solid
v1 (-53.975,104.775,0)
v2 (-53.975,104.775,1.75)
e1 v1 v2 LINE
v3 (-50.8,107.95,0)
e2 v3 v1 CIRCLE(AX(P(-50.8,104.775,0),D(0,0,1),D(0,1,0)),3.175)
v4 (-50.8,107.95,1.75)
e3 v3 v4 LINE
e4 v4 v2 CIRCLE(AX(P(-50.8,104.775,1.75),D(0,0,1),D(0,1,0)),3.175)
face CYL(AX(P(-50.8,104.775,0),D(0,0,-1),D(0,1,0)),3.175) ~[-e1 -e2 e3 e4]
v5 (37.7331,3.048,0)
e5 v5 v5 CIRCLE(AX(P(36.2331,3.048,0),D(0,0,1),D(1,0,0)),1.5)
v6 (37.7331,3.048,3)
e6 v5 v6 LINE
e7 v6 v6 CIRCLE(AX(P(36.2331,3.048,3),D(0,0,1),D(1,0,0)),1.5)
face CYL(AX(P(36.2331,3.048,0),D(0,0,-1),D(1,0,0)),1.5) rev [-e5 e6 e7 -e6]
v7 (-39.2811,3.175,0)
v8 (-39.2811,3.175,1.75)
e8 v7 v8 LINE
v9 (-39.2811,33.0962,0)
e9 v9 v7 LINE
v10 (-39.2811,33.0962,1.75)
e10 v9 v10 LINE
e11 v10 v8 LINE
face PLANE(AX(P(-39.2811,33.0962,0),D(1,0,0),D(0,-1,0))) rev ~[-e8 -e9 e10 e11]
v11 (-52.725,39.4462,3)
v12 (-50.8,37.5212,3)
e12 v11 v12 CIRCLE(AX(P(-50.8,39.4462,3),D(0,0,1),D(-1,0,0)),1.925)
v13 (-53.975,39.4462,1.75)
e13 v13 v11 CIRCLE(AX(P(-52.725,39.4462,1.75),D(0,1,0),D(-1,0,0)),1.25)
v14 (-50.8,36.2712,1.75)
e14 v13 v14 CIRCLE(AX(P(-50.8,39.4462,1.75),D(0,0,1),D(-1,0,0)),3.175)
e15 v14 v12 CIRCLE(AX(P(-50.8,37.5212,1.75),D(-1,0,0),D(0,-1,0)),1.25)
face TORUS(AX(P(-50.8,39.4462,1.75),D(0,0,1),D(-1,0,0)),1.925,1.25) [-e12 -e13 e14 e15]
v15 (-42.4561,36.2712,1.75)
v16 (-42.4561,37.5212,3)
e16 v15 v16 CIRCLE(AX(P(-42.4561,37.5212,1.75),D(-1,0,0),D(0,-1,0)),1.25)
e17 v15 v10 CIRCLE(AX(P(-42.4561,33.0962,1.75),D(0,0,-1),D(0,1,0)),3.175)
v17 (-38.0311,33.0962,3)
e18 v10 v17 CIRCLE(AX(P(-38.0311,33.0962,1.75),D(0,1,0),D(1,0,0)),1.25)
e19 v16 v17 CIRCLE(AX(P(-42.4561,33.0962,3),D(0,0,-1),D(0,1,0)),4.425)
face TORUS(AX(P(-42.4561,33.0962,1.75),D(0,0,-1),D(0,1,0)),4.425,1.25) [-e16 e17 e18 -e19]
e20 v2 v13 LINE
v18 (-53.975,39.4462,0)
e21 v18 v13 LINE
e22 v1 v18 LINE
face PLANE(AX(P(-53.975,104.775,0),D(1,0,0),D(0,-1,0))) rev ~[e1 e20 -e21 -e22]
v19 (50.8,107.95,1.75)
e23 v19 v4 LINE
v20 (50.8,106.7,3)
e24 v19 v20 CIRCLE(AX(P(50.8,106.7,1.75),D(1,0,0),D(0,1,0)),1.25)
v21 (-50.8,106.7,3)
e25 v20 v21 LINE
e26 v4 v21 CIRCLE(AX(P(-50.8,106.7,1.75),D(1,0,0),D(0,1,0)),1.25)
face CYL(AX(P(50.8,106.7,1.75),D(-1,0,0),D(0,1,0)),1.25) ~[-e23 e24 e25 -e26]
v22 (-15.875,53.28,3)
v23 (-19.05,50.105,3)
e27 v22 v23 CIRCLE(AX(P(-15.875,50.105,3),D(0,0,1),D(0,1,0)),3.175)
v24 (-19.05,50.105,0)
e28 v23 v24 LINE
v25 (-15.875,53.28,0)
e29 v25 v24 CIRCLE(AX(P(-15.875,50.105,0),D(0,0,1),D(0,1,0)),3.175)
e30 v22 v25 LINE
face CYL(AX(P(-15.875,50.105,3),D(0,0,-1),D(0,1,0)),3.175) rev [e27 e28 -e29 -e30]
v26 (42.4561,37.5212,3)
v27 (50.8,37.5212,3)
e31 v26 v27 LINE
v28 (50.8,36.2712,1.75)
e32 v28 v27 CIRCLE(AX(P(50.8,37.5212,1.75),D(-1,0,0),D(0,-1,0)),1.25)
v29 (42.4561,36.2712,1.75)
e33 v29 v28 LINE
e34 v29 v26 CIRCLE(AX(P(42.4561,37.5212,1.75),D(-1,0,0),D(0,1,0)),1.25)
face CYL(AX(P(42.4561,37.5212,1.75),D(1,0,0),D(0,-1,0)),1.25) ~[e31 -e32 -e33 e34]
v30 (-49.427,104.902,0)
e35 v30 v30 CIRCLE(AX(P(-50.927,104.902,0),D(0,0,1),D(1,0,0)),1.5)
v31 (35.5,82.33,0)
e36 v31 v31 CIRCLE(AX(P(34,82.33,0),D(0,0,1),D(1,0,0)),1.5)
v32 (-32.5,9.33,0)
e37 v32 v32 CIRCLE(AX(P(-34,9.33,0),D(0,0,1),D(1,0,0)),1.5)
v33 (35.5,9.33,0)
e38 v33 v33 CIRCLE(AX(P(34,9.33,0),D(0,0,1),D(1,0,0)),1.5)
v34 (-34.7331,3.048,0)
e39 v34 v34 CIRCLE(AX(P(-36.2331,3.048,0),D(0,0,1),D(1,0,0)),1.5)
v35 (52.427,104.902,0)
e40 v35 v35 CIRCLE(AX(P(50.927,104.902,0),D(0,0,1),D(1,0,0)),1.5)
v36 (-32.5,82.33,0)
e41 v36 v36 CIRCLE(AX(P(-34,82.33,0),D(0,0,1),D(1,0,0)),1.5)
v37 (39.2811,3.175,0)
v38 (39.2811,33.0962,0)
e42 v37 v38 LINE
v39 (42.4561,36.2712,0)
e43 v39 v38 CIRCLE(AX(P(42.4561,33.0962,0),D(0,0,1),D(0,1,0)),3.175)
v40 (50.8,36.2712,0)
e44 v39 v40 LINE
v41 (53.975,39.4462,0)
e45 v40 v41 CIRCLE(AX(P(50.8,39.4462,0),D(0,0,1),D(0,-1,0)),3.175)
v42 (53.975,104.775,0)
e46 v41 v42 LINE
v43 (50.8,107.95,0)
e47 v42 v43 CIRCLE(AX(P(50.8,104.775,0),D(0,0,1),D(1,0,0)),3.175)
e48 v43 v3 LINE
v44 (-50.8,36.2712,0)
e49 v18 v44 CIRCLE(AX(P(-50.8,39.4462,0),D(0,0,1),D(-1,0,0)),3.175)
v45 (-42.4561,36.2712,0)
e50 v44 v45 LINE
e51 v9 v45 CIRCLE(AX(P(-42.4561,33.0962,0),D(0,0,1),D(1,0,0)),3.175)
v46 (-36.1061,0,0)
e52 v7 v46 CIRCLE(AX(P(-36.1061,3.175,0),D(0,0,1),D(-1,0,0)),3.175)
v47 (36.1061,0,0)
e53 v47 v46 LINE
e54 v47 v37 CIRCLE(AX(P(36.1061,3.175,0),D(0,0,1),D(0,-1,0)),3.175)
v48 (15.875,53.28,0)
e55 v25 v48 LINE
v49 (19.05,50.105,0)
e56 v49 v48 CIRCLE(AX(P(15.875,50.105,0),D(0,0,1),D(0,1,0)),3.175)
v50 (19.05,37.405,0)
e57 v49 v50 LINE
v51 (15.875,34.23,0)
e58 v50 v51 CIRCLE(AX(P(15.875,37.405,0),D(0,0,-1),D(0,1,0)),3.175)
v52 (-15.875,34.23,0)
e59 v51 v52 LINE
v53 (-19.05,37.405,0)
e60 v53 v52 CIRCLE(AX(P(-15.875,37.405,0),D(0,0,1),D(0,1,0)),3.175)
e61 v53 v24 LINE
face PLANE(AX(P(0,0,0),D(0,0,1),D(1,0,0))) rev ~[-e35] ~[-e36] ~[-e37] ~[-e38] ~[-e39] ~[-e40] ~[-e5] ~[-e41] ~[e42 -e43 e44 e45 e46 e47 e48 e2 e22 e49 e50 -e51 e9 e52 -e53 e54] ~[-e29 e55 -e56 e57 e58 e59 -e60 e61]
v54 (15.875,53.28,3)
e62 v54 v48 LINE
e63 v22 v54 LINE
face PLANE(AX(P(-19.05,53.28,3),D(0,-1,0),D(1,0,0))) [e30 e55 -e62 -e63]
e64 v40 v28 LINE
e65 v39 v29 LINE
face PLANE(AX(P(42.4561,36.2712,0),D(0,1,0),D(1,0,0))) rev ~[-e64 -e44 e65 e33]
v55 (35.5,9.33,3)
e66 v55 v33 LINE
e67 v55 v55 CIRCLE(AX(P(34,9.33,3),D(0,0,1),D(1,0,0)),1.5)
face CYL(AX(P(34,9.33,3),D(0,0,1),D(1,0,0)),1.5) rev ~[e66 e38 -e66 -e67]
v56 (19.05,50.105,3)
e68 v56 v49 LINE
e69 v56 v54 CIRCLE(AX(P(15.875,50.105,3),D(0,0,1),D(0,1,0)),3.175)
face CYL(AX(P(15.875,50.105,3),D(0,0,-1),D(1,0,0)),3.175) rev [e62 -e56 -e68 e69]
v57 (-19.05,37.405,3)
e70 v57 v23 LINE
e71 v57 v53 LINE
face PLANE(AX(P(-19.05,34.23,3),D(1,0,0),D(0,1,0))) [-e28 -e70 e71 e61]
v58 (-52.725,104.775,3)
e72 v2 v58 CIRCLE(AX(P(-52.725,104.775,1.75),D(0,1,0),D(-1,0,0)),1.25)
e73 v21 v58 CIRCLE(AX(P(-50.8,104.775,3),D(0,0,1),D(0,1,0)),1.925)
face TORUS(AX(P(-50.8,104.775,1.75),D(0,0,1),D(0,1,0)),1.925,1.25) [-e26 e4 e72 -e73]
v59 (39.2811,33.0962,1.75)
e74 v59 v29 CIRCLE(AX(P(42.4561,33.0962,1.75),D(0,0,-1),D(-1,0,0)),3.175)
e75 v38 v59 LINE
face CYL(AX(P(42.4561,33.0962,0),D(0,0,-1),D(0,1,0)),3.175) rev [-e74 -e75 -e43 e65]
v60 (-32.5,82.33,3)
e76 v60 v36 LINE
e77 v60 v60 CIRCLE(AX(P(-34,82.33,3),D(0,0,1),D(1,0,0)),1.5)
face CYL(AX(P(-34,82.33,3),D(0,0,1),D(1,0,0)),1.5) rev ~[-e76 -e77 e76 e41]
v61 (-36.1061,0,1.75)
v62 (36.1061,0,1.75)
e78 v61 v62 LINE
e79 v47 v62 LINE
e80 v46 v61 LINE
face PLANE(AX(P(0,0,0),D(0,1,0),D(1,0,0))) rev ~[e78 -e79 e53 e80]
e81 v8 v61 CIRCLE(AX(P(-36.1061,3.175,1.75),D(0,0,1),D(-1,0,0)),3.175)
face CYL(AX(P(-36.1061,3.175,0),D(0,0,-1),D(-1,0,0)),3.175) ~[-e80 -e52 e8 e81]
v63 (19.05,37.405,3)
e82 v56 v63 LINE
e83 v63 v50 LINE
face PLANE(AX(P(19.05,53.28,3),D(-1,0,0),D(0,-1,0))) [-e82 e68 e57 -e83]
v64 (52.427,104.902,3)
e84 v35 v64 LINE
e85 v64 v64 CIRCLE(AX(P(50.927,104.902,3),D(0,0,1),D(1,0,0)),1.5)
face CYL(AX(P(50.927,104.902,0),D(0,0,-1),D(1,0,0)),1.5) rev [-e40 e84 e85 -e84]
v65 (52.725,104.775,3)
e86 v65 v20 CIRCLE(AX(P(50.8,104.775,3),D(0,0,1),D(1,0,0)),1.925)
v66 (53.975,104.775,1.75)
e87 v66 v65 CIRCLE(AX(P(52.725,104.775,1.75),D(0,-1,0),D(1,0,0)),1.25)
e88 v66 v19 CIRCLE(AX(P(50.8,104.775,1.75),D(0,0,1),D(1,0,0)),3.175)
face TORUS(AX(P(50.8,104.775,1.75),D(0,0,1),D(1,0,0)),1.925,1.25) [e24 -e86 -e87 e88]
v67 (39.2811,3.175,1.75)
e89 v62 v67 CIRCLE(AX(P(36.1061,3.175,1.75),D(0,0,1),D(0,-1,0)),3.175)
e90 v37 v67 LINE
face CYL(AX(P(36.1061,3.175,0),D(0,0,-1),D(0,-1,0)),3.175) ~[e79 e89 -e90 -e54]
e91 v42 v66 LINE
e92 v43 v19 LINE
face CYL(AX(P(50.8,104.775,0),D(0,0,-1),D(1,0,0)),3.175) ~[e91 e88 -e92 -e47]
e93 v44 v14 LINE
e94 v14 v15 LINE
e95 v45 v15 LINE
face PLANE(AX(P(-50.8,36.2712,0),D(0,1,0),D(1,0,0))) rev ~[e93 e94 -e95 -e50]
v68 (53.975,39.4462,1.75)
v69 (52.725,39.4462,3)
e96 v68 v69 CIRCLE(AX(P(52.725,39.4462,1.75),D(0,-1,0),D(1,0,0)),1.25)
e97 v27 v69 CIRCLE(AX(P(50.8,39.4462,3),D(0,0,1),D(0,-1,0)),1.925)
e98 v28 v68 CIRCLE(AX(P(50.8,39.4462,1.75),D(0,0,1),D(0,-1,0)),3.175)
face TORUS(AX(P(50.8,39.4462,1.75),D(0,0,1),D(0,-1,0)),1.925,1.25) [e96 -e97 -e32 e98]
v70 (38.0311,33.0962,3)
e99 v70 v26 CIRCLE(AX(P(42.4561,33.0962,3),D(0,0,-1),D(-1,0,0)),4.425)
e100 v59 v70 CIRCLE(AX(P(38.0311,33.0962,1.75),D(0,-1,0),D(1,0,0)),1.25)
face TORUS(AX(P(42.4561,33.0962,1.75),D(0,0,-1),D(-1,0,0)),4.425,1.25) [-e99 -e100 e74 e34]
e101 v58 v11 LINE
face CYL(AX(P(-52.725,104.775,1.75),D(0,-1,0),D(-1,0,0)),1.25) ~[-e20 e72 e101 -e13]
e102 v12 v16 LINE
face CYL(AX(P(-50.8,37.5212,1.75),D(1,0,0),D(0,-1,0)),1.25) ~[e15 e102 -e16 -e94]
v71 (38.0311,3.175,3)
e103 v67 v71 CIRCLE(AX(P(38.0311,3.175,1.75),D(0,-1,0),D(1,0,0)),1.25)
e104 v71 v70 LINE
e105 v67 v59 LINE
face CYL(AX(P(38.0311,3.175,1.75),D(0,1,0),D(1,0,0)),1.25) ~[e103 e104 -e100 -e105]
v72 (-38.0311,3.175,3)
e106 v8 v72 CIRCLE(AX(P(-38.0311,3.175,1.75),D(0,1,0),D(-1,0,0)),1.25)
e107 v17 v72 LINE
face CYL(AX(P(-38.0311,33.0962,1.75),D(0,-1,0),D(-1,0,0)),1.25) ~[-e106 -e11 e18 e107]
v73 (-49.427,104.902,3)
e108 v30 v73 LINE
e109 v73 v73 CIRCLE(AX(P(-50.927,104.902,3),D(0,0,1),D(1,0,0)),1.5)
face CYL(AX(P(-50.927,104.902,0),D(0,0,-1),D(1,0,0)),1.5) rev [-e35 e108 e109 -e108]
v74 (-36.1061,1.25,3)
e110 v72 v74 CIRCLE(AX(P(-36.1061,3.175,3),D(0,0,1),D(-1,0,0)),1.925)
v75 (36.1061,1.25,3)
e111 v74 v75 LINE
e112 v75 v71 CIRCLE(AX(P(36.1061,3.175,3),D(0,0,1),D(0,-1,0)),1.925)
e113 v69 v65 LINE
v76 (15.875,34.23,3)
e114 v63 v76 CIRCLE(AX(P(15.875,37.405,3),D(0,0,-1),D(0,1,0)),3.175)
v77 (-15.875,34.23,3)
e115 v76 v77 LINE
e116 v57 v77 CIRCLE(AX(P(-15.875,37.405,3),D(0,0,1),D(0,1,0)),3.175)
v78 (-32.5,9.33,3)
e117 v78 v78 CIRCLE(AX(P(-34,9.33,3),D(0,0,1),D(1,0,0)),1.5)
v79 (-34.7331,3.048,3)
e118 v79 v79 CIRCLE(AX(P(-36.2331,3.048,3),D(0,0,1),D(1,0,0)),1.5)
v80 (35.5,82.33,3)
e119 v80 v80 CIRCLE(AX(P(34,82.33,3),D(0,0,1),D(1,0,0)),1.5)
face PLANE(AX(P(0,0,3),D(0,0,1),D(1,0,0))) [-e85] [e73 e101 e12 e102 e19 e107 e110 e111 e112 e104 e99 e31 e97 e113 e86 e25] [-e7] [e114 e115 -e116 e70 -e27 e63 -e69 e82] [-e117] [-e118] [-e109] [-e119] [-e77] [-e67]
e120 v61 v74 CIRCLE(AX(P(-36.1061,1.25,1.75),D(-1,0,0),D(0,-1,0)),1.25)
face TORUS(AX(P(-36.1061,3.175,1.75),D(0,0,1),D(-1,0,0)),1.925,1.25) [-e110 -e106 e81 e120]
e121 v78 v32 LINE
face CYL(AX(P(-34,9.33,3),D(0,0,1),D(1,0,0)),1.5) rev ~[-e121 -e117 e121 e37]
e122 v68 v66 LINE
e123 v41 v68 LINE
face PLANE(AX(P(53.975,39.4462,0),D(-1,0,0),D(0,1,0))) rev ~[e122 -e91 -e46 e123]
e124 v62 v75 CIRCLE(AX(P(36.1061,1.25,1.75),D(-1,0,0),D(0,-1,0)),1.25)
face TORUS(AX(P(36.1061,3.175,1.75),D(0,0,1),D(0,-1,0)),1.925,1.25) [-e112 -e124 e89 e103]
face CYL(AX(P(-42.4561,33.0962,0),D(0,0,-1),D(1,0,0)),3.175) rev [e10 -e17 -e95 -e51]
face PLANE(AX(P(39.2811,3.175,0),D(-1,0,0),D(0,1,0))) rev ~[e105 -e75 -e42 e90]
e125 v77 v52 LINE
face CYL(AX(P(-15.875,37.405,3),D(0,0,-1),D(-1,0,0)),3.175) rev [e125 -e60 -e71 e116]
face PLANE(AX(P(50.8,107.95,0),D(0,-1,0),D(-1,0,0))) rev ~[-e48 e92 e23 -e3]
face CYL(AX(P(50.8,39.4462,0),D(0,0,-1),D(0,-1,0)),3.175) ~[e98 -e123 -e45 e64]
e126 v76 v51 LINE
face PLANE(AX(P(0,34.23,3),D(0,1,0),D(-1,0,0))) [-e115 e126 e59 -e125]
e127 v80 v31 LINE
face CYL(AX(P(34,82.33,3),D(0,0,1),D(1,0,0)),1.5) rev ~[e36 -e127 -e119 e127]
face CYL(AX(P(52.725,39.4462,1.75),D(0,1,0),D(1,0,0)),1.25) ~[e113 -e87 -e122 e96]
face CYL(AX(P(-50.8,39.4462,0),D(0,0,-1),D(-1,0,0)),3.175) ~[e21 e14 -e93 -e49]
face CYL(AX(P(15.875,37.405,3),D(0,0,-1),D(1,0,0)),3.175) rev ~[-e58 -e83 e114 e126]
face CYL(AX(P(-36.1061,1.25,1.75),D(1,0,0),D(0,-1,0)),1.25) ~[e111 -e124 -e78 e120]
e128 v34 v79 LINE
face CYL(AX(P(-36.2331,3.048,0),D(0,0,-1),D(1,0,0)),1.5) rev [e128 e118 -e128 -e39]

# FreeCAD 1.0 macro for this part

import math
import FreeCAD as App
import Part
import Sketcher
from FreeCAD import Vector
Q = App.Units.Quantity


def edges_at(feature, points):
    """Names of the edges that pass closest to the given points."""
    edges = feature.Shape.Edges
    near = lambda p: min(range(len(edges)), key=lambda i: edges[i].distToShape(Part.Vertex(*p))[0])
    return sorted({f"Edge{near(p) + 1}" for p in points})

doc = App.newDocument("Part")
body = doc.addObject("PartDesign::Body", "Body")

# Sketch on XY plane
sketch1 = body.newObject("Sketcher::SketchObject", "Sketch")
sketch1.AttachmentSupport = (doc.getObject("XY_Plane"), [""])
sketch1.MapMode = "FlatFace"
sketch1.addGeometry([
    Part.LineSegment(Vector(50.8, 108, 0), Vector(-50.8, 108, 0)),  # 0
    Part.ArcOfCircle(Part.Circle(Vector(-50.8, 104.8, 0), Vector(0, 0, 1), 3.2), math.radians(90), math.radians(180)),  # 1
    Part.LineSegment(Vector(-54, 104.8, 0), Vector(-54, 39.4, 0)),  # 2
    Part.ArcOfCircle(Part.Circle(Vector(-50.8, 39.4, 0), Vector(0, 0, 1), 3.2), math.radians(180), math.radians(270)),  # 3
    Part.LineSegment(Vector(-50.8, 36.3, 0), Vector(-42.5, 36.3, 0)),  # 4
    Part.ArcOfCircle(Part.Circle(Vector(-42.5, 33.1, 0), Vector(0, 0, 1), 3.2), math.radians(0), math.radians(90)),  # 5
    Part.LineSegment(Vector(-39.3, 33.1, 0), Vector(-39.3, 3.2, 0)),  # 6
    Part.ArcOfCircle(Part.Circle(Vector(-36.1, 3.2, 0), Vector(0, 0, 1), 3.2), math.radians(180), math.radians(270)),  # 7
    Part.LineSegment(Vector(-36.1, 0, 0), Vector(36.1, 0, 0)),  # 8
    Part.ArcOfCircle(Part.Circle(Vector(36.1, 3.2, 0), Vector(0, 0, 1), 3.2), math.radians(-90), math.radians(0)),  # 9
    Part.LineSegment(Vector(39.3, 3.2, 0), Vector(39.3, 33.1, 0)),  # 10
    Part.ArcOfCircle(Part.Circle(Vector(42.5, 33.1, 0), Vector(0, 0, 1), 3.2), math.radians(90), math.radians(180)),  # 11
    Part.LineSegment(Vector(42.5, 36.3, 0), Vector(50.8, 36.3, 0)),  # 12
    Part.ArcOfCircle(Part.Circle(Vector(50.8, 39.4, 0), Vector(0, 0, 1), 3.2), math.radians(-90), math.radians(0)),  # 13
    Part.LineSegment(Vector(54, 39.4, 0), Vector(54, 104.8, 0)),  # 14
    Part.ArcOfCircle(Part.Circle(Vector(50.8, 104.8, 0), Vector(0, 0, 1), 3.2), math.radians(0), math.radians(90)),  # 15
    Part.Circle(Vector(-36.2, 3, 0), Vector(0, 0, 1), 1.5),  # 16
    Part.Circle(Vector(36.2, 3, 0), Vector(0, 0, 1), 1.5),  # 17
    Part.Circle(Vector(-50.9, 104.9, 0), Vector(0, 0, 1), 1.5),  # 18
    Part.Circle(Vector(50.9, 104.9, 0), Vector(0, 0, 1), 1.5),  # 19
], False)
sketch1.addConstraint([
    Sketcher.Constraint("Tangent", 0, 2, 1, 1),
    Sketcher.Constraint("Tangent", 1, 2, 2, 1),
    Sketcher.Constraint("Tangent", 2, 2, 3, 1),
    Sketcher.Constraint("Tangent", 3, 2, 4, 1),
    Sketcher.Constraint("Tangent", 4, 2, 5, 2),
    Sketcher.Constraint("Tangent", 5, 1, 6, 1),
    Sketcher.Constraint("Tangent", 6, 2, 7, 1),
    Sketcher.Constraint("Tangent", 7, 2, 8, 1),
    Sketcher.Constraint("Tangent", 8, 2, 9, 1),
    Sketcher.Constraint("Tangent", 9, 2, 10, 1),
    Sketcher.Constraint("Tangent", 10, 2, 11, 2),
    Sketcher.Constraint("Tangent", 11, 1, 12, 1),
    Sketcher.Constraint("Tangent", 12, 2, 13, 1),
    Sketcher.Constraint("Tangent", 13, 2, 14, 1),
    Sketcher.Constraint("Tangent", 14, 2, 15, 1),
    Sketcher.Constraint("Tangent", 15, 2, 0, 1),
    Sketcher.Constraint("Horizontal", 0),
    Sketcher.Constraint("Vertical", 2),
    Sketcher.Constraint("Horizontal", 4),
    Sketcher.Constraint("Vertical", 6),
    Sketcher.Constraint("Horizontal", 8),
    Sketcher.Constraint("Vertical", 10),
    Sketcher.Constraint("Horizontal", 12),
    Sketcher.Constraint("Vertical", 14),
    Sketcher.Constraint("Equal", 1, 3),
    Sketcher.Constraint("Equal", 3, 5),
    Sketcher.Constraint("Equal", 5, 7),
    Sketcher.Constraint("Equal", 7, 9),
    Sketcher.Constraint("Equal", 9, 11),
    Sketcher.Constraint("Equal", 11, 13),
    Sketcher.Constraint("Equal", 13, 15),
    Sketcher.Constraint("Equal", 16, 17),
    Sketcher.Constraint("Equal", 17, 18),
    Sketcher.Constraint("Equal", 18, 19),
    Sketcher.Constraint("Symmetric", 7, 2, 8, 2, -1, 1),
    Sketcher.Constraint("Symmetric", 3, 3, 13, 3, -2),
    Sketcher.Constraint("Symmetric", 16, 3, 17, 3, -2),
    Sketcher.Constraint("Symmetric", 18, 3, 19, 3, -2),
    Sketcher.Constraint("DistanceX", 0, 2, 0, 1, Q("4 in")),
    Sketcher.Constraint("Radius", 1, Q("0.125 in")),
    Sketcher.Constraint("DistanceY", 7, 3, 1, 3, Q("4 in")),
    Sketcher.Constraint("Diameter", 16, Q("0.1181 in")),
    Sketcher.Constraint("DistanceX", 8, 1, 8, 2, Q("2.843 in")),
    Sketcher.Constraint("DistanceY", 2, 2, 2, 1, Q("2.572 in")),
    Sketcher.Constraint("DistanceY", -1, 1, 16, 3, Q("0.12 in")),
    Sketcher.Constraint("DistanceY", -1, 1, 18, 3, Q("4.13 in")),
    Sketcher.Constraint("DistanceX", 18, 3, 19, 3, Q("4.01 in")),
    Sketcher.Constraint("DistanceX", 6, 2, 16, 3, Q("0.12 in")),
])
pad1 = body.newObject("PartDesign::Pad", "Pad")
pad1.Profile = sketch1
pad1.Length = Q("0.1181102 in")
doc.recompute()

fillet = body.newObject("PartDesign::Fillet", "Fillet")
fillet.Base = (pad1, edges_at(pad1, [
    (53.045, 107.02, 3),
    (0, 107.95, 3),
    (-53.045, 107.02, 3),
    (-53.975, 72.111, 3),
    (-53.045, 37.201, 3),
    (-46.628, 36.271, 3),
    (-40.211, 35.341, 3),
    (-39.281, 18.136, 3),
    (-38.351, 0.93, 3),
    (0, 0, 3),
    (38.351, 0.93, 3),
    (39.281, 18.136, 3),
    (40.211, 35.341, 3),
    (46.628, 36.271, 3),
    (53.045, 37.201, 3),
    (53.975, 72.111, 3),
]))
fillet.Radius = 1.25

# Sketch on XY plane
sketch2 = body.newObject("Sketcher::SketchObject", "Sketch001")
sketch2.AttachmentSupport = (doc.getObject("XY_Plane"), [""])
sketch2.MapMode = "FlatFace"
sketch2.AttachmentOffset = App.Placement(Vector(0, 0, 0.1181102 * 25.4), App.Rotation())
sketch2.addGeometry([
    Part.LineSegment(Vector(-19.1, 34.2, 0), Vector(19.1, 34.2, 0)),  # 0
    Part.LineSegment(Vector(19.1, 34.2, 0), Vector(19.1, 53.3, 0)),  # 1
    Part.LineSegment(Vector(19.1, 53.3, 0), Vector(-19.1, 53.3, 0)),  # 2
    Part.LineSegment(Vector(-19.1, 53.3, 0), Vector(-19.1, 34.2, 0)),  # 3
    Part.Circle(Vector(34, 82.3, 0), Vector(0, 0, 1), 1.5),  # 4
    Part.Circle(Vector(-34, 82.3, 0), Vector(0, 0, 1), 1.5),  # 5
    Part.Circle(Vector(-34, 9.3, 0), Vector(0, 0, 1), 1.5),  # 6
    Part.Circle(Vector(34, 9.3, 0), Vector(0, 0, 1), 1.5),  # 7
], False)
sketch2.addConstraint([
    Sketcher.Constraint("Coincident", 0, 2, 1, 1),
    Sketcher.Constraint("Coincident", 1, 2, 2, 1),
    Sketcher.Constraint("Coincident", 2, 2, 3, 1),
    Sketcher.Constraint("Coincident", 3, 2, 0, 1),
    Sketcher.Constraint("Horizontal", 0),
    Sketcher.Constraint("Vertical", 1),
    Sketcher.Constraint("Horizontal", 2),
    Sketcher.Constraint("Vertical", 3),
    Sketcher.Constraint("Equal", 4, 5),
    Sketcher.Constraint("Equal", 5, 6),
    Sketcher.Constraint("Equal", 6, 7),
    Sketcher.Constraint("Symmetric", 4, 3, 5, 3, -2),
    Sketcher.Constraint("Symmetric", 6, 3, 7, 3, -2),
    Sketcher.Constraint("Vertical", 5, 3, 6, 3),
    Sketcher.Constraint("DistanceX", 0, 1, 0, 2, Q("1.5 in")),
    Sketcher.Constraint("DistanceY", 1, 1, 1, 2, Q("0.75 in")),
    Sketcher.Constraint("DistanceX", -1, 1, 0, 2, Q("0.75 in")),
    Sketcher.Constraint("Diameter", 4, Q("0.1181 in")),
    Sketcher.Constraint("DistanceY", 0, 2, 4, 3, Q("1.8937 in")),
    Sketcher.Constraint("DistanceX", -1, 1, 4, 3, 34.0),
    Sketcher.Constraint("DistanceY", -1, 1, 4, 3, 82.33),
    Sketcher.Constraint("DistanceY", -1, 1, 6, 3, 9.33),
])
pocket1 = body.newObject("PartDesign::Pocket", "Pocket")
pocket1.Profile = sketch2
pocket1.Type = "ThroughAll"
doc.recompute()

fillet2 = body.newObject("PartDesign::Fillet", "Fillet001")
fillet2.Base = (pocket1, edges_at(pocket1, [
    (-19.05, 53.28, 1.5),
    (-19.05, 34.23, 1.5),
    (19.05, 34.23, 1.5),
    (19.05, 53.28, 1.5),
]))
fillet2.Radius = Q("0.125 in")

doc.recompute()
